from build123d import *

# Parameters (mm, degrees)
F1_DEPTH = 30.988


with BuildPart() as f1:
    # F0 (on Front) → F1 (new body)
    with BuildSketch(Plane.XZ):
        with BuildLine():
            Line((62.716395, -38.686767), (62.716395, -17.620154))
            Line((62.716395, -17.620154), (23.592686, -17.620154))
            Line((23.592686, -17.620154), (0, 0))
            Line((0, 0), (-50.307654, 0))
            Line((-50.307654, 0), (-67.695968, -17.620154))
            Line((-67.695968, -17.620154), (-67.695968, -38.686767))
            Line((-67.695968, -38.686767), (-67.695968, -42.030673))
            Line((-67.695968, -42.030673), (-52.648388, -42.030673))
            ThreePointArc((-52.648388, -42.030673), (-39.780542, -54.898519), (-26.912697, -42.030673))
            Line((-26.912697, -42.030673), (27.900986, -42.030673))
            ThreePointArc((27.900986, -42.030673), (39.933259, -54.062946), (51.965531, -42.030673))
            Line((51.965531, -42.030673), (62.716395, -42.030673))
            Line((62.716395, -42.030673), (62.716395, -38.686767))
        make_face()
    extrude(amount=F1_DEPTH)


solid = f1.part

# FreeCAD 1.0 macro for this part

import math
import FreeCAD as App
import Part
import Sketcher
from FreeCAD import Vector

doc = App.newDocument("Part")
params = doc.addObject("Spreadsheet::Sheet", "Params")
for row, (alias, value) in enumerate([
    ("pad1_length", "1.22 in"),
], start=1):
    params.set(f"A{row}", alias)
    params.set(f"B{row}", "=" + value)
    params.setAlias(f"B{row}", alias)

body = doc.addObject("PartDesign::Body", "Body")

# Sketch on XZ plane
sketch1 = body.newObject("Sketcher::SketchObject", "Sketch")
sketch1.AttachmentSupport = (doc.getObject("XZ_Plane"), [""])
sketch1.MapMode = "FlatFace"
sketch1.addGeometry([
    Part.LineSegment(Vector(63, -18, 0), Vector(24, -18, 0)),  # 0
    Part.LineSegment(Vector(24, -18, 0), Vector(0, 0, 0)),  # 1
    Part.LineSegment(Vector(0, 0, 0), Vector(-50, 0, 0)),  # 2
    Part.LineSegment(Vector(-50, 0, 0), Vector(-68, -18, 0)),  # 3
    Part.LineSegment(Vector(-68, -18, 0), Vector(-68, -42, 0)),  # 4
    Part.LineSegment(Vector(-68, -42, 0), Vector(-53, -42, 0)),  # 5
    Part.ArcOfCircle(Part.Circle(Vector(-40, -42, 0), Vector(0, 0, 1), 13), math.radians(180), math.radians(360)),  # 6
    Part.LineSegment(Vector(-27, -42, 0), Vector(28, -42, 0)),  # 7
    Part.ArcOfCircle(Part.Circle(Vector(40, -42, 0), Vector(0, 0, 1), 12), math.radians(180), math.radians(360)),  # 8
    Part.LineSegment(Vector(52, -42, 0), Vector(63, -42, 0)),  # 9
    Part.LineSegment(Vector(63, -42, 0), Vector(63, -18, 0)),  # 10
], False)
sketch1.addConstraint([
    Sketcher.Constraint("Coincident", 0, 2, 1, 1),
    Sketcher.Constraint("Coincident", 1, 2, 2, 1),
    Sketcher.Constraint("Coincident", 2, 2, 3, 1),
    Sketcher.Constraint("Coincident", 3, 2, 4, 1),
    Sketcher.Constraint("Coincident", 4, 2, 5, 1),
    Sketcher.Constraint("Coincident", 5, 2, 6, 1),
    Sketcher.Constraint("Coincident", 6, 2, 7, 1),
    Sketcher.Constraint("Coincident", 7, 2, 8, 1),
    Sketcher.Constraint("Coincident", 8, 2, 9, 1),
    Sketcher.Constraint("Coincident", 9, 2, 10, 1),
    Sketcher.Constraint("Coincident", 10, 2, 0, 1),
    Sketcher.Constraint("Horizontal", 0),
    Sketcher.Constraint("Horizontal", 2),
    Sketcher.Constraint("Vertical", 4),
    Sketcher.Constraint("Horizontal", 5),
    Sketcher.Constraint("Horizontal", 7),
    Sketcher.Constraint("Horizontal", 9),
    Sketcher.Constraint("Vertical", 10),
    Sketcher.Constraint("Coincident", 1, 2, -1, 1),
    Sketcher.Constraint("Horizontal", 6, 3, 8, 3),
    Sketcher.Constraint("Horizontal", 0, 2, 3, 2),
    Sketcher.Constraint("Horizontal", 8, 3, 4, 2),
    Sketcher.Constraint("Horizontal", 5, 2, 6, 2),
    Sketcher.Constraint("Horizontal", 7, 2, 8, 2),
    Sketcher.Constraint("Radius", 6, 12.867845),
    Sketcher.Constraint("Radius", 8, 12.032272),
    Sketcher.Constraint("Distance", 1, 29.446301),
    Sketcher.Constraint("DistanceX", 0, 2, 0, 1, 39.123709),
    Sketcher.Constraint("DistanceX", 5, 1, 5, 2, 15.04758),
    Sketcher.Constraint("DistanceY", 4, 2, 4, 1, 24.410519),
    Sketcher.Constraint("DistanceX", 6, 3, 8, 3, 79.713801),
    Sketcher.Constraint("DistanceX", 0, 2, 7, 2, 4.3083),
    Sketcher.Constraint("DistanceX", 2, 2, 2, 1, 50.307654),
    Sketcher.Constraint("DistanceX", -1, 1, 8, 3, 39.933259),
])
pad1 = body.newObject("PartDesign::Pad", "Pad")
pad1.Profile = sketch1
pad1.setExpression("Length", "Params.pad1_length")

doc.recompute()
